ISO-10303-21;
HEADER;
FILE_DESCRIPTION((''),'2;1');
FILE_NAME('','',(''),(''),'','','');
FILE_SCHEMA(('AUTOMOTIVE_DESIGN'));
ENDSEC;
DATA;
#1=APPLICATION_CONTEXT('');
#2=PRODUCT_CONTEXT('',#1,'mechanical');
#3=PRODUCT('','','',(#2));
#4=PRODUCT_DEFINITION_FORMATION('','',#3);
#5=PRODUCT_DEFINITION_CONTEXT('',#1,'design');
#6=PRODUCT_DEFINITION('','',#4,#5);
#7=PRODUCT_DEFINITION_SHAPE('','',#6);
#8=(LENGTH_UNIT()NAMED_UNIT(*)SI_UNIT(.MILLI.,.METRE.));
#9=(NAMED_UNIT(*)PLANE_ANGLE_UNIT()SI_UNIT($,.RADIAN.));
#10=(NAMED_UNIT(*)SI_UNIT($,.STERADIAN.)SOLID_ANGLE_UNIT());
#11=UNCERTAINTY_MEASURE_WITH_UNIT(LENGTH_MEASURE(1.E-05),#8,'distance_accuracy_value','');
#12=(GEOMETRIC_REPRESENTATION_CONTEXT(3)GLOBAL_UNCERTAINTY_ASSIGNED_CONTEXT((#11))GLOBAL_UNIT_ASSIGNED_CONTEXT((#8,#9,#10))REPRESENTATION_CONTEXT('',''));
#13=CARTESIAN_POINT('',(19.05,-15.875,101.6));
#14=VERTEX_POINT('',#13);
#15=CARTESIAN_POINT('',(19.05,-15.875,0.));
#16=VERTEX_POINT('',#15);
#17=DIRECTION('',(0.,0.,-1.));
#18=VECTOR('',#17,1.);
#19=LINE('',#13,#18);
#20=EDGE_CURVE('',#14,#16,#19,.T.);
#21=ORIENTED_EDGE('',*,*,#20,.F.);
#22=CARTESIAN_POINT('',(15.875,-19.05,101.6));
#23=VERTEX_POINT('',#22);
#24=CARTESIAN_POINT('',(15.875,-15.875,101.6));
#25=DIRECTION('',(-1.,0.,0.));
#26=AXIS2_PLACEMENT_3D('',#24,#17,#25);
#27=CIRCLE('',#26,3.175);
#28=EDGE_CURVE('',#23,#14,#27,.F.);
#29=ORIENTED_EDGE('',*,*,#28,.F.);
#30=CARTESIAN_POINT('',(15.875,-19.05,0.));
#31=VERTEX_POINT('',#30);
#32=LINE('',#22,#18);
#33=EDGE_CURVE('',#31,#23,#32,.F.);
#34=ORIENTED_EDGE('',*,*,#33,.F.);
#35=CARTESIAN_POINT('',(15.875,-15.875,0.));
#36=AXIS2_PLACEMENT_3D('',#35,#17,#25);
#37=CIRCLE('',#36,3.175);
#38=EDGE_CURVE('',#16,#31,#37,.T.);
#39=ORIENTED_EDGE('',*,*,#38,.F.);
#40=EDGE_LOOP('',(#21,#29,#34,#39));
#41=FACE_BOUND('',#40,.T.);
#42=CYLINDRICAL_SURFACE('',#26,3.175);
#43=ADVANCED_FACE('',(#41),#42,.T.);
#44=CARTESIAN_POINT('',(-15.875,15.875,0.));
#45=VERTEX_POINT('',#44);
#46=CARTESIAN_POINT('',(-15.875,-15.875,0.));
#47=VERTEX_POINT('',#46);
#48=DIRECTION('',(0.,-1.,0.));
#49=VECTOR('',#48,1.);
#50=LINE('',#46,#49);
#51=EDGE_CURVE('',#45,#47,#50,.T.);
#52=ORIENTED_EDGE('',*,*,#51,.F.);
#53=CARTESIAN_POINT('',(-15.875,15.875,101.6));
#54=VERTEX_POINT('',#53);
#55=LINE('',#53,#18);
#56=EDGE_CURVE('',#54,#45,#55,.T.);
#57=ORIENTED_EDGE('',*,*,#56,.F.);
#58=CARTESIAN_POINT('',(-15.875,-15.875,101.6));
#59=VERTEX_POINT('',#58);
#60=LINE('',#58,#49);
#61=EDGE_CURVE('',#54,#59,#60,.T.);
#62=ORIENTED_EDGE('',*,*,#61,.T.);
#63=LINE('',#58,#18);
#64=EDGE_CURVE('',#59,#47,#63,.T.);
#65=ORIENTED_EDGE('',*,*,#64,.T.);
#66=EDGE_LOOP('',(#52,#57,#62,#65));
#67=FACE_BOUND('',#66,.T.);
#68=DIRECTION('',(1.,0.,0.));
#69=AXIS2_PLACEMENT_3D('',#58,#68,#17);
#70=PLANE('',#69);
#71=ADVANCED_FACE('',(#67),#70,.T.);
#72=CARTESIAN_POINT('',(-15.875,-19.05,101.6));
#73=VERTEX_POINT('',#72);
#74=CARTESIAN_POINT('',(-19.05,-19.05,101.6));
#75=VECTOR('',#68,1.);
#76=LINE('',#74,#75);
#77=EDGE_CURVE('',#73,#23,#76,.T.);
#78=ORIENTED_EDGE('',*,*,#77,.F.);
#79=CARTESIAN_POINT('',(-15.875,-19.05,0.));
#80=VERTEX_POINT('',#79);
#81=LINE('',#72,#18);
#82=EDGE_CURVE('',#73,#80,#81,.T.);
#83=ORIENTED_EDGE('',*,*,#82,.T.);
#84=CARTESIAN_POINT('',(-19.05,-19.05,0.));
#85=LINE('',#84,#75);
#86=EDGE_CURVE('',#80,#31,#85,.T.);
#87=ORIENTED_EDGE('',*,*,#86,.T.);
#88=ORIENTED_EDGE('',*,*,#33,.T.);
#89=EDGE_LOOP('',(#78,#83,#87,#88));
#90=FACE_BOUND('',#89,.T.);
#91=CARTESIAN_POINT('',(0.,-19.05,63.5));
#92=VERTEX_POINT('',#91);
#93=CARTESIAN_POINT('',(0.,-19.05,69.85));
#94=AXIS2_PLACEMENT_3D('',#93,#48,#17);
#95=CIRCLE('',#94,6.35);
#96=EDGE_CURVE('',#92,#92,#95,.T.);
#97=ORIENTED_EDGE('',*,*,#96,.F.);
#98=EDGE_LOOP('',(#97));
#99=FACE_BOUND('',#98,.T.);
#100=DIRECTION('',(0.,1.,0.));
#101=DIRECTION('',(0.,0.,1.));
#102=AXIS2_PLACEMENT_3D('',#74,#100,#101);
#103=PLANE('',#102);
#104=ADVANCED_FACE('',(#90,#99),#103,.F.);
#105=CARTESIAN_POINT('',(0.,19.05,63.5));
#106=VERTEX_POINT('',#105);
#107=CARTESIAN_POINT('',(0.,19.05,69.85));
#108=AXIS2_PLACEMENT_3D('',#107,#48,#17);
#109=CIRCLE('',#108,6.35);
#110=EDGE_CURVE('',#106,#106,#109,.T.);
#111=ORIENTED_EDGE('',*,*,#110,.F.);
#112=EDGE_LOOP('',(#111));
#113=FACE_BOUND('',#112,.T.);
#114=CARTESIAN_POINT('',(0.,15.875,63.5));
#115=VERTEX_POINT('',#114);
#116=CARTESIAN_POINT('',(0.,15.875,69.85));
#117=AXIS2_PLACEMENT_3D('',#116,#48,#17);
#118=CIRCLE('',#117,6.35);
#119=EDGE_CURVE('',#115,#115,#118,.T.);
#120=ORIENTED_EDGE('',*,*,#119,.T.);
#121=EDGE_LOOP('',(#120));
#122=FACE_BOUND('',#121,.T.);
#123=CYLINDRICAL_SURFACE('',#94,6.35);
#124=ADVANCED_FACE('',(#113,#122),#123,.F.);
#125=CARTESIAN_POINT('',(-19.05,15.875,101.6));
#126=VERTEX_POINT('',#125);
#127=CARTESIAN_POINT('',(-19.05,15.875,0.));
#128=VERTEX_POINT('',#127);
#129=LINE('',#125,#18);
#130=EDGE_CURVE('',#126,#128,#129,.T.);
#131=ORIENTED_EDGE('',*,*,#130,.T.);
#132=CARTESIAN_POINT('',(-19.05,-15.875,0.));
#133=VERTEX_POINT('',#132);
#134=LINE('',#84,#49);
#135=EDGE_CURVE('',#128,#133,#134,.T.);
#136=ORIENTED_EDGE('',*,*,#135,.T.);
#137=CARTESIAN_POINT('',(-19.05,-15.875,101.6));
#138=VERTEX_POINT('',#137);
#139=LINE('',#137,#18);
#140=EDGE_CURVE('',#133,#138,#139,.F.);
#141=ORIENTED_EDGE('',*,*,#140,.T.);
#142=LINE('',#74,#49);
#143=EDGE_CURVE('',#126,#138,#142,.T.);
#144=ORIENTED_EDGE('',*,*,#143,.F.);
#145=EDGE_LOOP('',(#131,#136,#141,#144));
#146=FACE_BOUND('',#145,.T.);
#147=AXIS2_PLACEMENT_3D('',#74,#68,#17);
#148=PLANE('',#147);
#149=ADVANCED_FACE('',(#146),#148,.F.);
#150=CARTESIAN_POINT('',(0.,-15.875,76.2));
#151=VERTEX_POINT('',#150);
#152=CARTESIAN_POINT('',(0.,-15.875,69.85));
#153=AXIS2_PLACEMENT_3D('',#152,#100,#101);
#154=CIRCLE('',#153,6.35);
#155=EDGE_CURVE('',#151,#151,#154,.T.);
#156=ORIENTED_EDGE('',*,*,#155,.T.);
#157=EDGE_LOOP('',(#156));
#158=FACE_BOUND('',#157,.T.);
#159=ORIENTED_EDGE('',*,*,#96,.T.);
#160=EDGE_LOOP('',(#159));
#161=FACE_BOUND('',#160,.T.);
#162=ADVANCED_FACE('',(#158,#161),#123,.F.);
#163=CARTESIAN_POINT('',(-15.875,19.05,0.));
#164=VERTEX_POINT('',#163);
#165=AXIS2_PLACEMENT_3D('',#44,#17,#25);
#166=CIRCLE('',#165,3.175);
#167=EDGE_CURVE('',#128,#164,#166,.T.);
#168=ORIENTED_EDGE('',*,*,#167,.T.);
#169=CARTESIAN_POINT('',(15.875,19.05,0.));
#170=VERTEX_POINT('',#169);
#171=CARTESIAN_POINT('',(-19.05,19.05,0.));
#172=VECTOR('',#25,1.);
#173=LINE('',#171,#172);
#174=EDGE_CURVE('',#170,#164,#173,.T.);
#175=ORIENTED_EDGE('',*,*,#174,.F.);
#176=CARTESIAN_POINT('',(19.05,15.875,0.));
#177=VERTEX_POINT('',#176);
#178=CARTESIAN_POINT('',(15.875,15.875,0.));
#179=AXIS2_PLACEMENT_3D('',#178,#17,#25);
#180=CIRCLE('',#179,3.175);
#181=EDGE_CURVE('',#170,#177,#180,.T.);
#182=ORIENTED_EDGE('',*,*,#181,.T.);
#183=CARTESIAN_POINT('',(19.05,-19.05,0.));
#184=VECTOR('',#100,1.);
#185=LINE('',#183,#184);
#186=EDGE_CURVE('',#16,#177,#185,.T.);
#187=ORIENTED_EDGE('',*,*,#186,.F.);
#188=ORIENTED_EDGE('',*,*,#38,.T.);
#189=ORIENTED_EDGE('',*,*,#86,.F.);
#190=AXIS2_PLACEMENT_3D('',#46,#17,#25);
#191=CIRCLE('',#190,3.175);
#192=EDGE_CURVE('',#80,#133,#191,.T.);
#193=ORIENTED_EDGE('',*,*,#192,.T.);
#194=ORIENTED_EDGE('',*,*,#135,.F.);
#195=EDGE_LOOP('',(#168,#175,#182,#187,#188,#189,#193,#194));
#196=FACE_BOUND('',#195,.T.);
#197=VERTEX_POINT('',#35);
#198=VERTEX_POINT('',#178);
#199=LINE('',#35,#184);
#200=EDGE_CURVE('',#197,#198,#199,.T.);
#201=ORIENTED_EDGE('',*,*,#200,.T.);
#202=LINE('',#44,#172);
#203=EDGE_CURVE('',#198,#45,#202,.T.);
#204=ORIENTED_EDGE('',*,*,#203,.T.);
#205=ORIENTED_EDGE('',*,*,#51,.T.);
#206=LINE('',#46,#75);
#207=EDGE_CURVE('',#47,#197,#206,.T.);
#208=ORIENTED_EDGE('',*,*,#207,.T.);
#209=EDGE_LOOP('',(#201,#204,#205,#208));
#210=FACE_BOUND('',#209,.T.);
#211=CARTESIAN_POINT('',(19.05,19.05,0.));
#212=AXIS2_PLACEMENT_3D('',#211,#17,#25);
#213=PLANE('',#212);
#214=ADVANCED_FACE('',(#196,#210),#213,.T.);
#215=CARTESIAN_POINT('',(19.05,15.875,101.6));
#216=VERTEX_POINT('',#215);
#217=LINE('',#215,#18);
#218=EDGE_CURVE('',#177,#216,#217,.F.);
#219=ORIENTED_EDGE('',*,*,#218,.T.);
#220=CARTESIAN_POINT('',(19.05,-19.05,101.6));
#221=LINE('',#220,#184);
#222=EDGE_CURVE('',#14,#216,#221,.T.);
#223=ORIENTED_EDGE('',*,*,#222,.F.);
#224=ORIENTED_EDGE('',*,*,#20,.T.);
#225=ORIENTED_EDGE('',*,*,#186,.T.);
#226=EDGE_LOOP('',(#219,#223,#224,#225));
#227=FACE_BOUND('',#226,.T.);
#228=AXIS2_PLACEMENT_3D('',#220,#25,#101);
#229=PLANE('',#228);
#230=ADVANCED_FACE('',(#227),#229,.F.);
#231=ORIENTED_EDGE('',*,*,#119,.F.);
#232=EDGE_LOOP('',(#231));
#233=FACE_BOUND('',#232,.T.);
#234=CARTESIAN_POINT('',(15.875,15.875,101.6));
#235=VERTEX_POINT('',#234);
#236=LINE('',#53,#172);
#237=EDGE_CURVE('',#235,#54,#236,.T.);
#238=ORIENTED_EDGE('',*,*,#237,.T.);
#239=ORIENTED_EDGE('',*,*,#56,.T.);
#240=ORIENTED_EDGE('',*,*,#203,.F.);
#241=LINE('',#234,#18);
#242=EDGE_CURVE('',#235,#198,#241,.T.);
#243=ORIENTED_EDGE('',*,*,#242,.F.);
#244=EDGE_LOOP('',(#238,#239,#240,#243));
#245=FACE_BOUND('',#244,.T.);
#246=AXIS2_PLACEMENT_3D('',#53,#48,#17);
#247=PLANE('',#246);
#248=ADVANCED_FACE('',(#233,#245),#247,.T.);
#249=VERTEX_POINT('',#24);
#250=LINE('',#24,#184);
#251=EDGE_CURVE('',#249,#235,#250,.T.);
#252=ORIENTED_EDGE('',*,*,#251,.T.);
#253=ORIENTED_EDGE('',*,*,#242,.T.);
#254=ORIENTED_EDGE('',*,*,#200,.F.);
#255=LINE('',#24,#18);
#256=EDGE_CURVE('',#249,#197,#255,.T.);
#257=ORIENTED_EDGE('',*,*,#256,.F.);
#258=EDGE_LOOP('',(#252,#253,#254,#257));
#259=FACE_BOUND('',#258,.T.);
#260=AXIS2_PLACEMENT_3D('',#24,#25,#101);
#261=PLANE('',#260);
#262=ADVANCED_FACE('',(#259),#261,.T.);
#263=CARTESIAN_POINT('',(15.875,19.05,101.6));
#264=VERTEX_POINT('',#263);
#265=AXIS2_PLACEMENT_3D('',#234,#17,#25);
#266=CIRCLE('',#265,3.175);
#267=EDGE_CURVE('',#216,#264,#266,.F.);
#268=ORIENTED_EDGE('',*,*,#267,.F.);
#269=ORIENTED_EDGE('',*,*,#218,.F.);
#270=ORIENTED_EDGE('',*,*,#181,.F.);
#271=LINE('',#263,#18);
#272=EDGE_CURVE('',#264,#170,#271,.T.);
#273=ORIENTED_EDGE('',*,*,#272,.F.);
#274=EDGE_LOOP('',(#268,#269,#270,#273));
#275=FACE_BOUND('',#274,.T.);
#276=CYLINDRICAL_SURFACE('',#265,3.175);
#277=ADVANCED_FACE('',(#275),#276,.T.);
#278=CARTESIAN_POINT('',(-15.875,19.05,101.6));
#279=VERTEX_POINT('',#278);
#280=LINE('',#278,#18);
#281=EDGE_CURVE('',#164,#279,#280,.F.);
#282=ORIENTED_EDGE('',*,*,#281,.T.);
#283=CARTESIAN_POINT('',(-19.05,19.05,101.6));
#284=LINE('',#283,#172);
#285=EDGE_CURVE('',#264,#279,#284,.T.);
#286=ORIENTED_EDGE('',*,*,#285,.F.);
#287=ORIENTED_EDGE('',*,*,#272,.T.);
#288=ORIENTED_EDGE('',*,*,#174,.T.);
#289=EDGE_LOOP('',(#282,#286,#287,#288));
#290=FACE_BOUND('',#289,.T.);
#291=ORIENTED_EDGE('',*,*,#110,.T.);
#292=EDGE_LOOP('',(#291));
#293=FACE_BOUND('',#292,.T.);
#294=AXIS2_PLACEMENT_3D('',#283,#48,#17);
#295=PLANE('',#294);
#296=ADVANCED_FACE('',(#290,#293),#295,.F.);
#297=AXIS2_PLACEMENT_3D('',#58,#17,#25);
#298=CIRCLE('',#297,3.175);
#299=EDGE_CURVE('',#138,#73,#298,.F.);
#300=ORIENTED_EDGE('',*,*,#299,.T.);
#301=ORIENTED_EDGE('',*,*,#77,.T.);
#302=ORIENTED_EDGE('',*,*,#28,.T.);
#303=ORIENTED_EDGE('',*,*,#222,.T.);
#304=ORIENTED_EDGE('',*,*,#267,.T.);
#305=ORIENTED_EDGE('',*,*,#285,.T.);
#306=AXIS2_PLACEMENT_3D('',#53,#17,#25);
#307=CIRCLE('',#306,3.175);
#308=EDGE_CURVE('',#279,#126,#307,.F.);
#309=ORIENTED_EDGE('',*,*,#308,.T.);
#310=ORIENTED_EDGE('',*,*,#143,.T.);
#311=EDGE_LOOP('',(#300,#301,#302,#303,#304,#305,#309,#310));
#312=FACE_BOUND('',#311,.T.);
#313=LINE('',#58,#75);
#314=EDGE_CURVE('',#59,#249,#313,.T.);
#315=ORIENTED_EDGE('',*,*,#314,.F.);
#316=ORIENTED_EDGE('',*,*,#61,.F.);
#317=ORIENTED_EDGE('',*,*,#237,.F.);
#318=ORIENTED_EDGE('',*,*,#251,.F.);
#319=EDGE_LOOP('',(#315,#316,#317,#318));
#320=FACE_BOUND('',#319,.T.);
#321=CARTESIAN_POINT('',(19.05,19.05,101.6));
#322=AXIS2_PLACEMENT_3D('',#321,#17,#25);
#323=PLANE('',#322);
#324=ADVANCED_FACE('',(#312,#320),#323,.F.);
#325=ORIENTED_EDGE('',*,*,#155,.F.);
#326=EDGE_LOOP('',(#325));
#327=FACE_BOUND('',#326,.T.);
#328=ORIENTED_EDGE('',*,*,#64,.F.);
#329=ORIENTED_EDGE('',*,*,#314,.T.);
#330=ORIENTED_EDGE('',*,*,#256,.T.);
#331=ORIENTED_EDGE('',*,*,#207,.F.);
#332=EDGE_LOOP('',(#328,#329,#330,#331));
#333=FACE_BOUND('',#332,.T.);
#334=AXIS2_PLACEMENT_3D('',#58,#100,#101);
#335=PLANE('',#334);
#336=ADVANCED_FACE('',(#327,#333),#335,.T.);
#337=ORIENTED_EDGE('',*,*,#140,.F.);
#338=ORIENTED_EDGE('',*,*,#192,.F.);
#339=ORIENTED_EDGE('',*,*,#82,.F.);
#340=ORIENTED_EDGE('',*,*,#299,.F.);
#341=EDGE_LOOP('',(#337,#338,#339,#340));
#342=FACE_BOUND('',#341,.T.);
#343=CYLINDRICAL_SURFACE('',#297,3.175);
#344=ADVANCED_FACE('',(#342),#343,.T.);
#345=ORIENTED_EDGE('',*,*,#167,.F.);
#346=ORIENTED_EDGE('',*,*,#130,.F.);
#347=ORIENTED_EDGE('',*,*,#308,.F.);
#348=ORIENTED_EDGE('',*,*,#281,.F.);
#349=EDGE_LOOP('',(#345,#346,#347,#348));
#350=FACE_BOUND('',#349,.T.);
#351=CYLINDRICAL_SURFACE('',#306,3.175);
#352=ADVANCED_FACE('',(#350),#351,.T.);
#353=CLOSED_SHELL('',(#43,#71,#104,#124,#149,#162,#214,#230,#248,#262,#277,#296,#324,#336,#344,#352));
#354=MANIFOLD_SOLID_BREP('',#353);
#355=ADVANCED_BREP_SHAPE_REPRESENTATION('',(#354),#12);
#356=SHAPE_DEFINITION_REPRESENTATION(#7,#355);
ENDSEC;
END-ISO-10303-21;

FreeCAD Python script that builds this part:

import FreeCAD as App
import Part
import Sketcher
from FreeCAD import Vector
Q = App.Units.Quantity


def edges_at(feature, points):
    """Names of the edges that pass closest to the given points."""
    edges = feature.Shape.Edges
    near = lambda p: min(range(len(edges)), key=lambda i: edges[i].distToShape(Part.Vertex(*p))[0])
    return sorted({f"Edge{near(p) + 1}" for p in points})


def add_polygon(sketch, points):
    """Adds a closed chain of lines whose ends are joined by coincident constraints."""
    first, n = sketch.GeometryCount, len(points)
    for a, b in zip(points, points[1:] + points[:1]):
        sketch.addGeometry(Part.LineSegment(App.Vector(*a, 0), App.Vector(*b, 0)), False)
    for i in range(n):
        sketch.addConstraint(Sketcher.Constraint("Coincident", first + i, 2, first + (i + 1) % n, 1))

doc = App.newDocument("Part")
params = doc.addObject("Spreadsheet::Sheet", "Params")
for row, (alias, value) in enumerate([
    ("sketch1_width", "1.5 in"),
    ("sketch1_width2", "1.25 in"),
    ("pad1_length", "4 in"),
    ("fillet_radius", "0.125 in"),
    ("sketch2_diameter", "0.5 in"),
    ("hole_diameter", "0.5 in"),
], start=1):
    params.set(f"A{row}", alias)
    params.set(f"B{row}", "=" + value)
    params.setAlias(f"B{row}", alias)

body = doc.addObject("PartDesign::Body", "Body")

# Sketch on XY plane
sketch1 = doc.addObject("Sketcher::SketchObject", "Sketch")
body.addObject(sketch1)
sketch1.AttachmentSupport = (doc.XY_Plane, [""])
sketch1.MapMode = "FlatFace"
add_polygon(sketch1, [(-19, 19), (-19, -19), (19, -19), (19, 19)])  # lines 0-3
add_polygon(sketch1, [(16, -16), (-16, -16), (-16, 16), (16, 16)])  # lines 4-7
sketch1.addConstraint(Sketcher.Constraint("Vertical", 0))
sketch1.addConstraint(Sketcher.Constraint("Horizontal", 1))
sketch1.addConstraint(Sketcher.Constraint("Vertical", 2))
sketch1.addConstraint(Sketcher.Constraint("Horizontal", 3))
sketch1.addConstraint(Sketcher.Constraint("Horizontal", 4))
sketch1.addConstraint(Sketcher.Constraint("Vertical", 5))
sketch1.addConstraint(Sketcher.Constraint("Horizontal", 6))
sketch1.addConstraint(Sketcher.Constraint("Vertical", 7))
sketch1.addConstraint(Sketcher.Constraint("Symmetric", 0, 2, 2, 2, -1, 1))
sketch1.addConstraint(Sketcher.Constraint("Symmetric", 4, 2, 6, 2, -1, 1))
sketch1.addConstraint(Sketcher.Constraint("Equal", 3, 0))
sketch1.addConstraint(Sketcher.Constraint("Equal", 6, 5))
sketch1.addConstraint(Sketcher.Constraint("DistanceX", 1, 1, 1, 2, Q("1.5 in")))
sketch1.addConstraint(Sketcher.Constraint("DistanceX", 4, 2, 4, 1, Q("1.25 in")))
sketch1.setExpression("Constraints[20]", "Params.sketch1_width")
sketch1.setExpression("Constraints[21]", "Params.sketch1_width2")
pad1 = doc.addObject("PartDesign::Pad", "Pad")
body.addObject(pad1)
pad1.Profile = sketch1
pad1.setExpression("Length", "Params.pad1_length")
doc.recompute()

fillet = doc.addObject("PartDesign::Fillet", "Fillet")
body.addObject(fillet)
fillet.Base = (pad1, edges_at(pad1, [
    (19.05, -19.05, 50.8),
    (-19.05, -19.05, 50.8),
    (-19.05, 19.05, 50.8),
    (19.05, 19.05, 50.8),
]))
fillet.setExpression("Radius", "Params.fillet_radius")

# Sketch on XZ plane
sketch2 = doc.addObject("Sketcher::SketchObject", "Sketch001")
body.addObject(sketch2)
sketch2.AttachmentSupport = (doc.XZ_Plane, [""])
sketch2.MapMode = "FlatFace"
sketch2.AttachmentOffset = App.Placement(Vector(0, 0, 0.75 * 25.4), App.Rotation())
sketch2.addGeometry(Part.Circle(Vector(0, 70, 0), Vector(0, 0, 1), 6), False)
sketch2.addConstraint(Sketcher.Constraint("PointOnObject", 0, 3, -2))
sketch2.addConstraint(Sketcher.Constraint("Diameter", 0, Q("0.5 in")))
sketch2.addConstraint(Sketcher.Constraint("DistanceY", -1, 1, 0, 3, Q("2.75 in")))
sketch2.setExpression("Constraints[1]", "Params.sketch2_diameter")
doc.recompute()
hole = doc.addObject("PartDesign::Hole", "Hole")
body.addObject(hole)
hole.Profile = sketch2
hole.ThreadType = "None"
hole.setExpression("Diameter", "Params.hole_diameter")
hole.DepthType = "ThroughAll"

doc.recompute()
